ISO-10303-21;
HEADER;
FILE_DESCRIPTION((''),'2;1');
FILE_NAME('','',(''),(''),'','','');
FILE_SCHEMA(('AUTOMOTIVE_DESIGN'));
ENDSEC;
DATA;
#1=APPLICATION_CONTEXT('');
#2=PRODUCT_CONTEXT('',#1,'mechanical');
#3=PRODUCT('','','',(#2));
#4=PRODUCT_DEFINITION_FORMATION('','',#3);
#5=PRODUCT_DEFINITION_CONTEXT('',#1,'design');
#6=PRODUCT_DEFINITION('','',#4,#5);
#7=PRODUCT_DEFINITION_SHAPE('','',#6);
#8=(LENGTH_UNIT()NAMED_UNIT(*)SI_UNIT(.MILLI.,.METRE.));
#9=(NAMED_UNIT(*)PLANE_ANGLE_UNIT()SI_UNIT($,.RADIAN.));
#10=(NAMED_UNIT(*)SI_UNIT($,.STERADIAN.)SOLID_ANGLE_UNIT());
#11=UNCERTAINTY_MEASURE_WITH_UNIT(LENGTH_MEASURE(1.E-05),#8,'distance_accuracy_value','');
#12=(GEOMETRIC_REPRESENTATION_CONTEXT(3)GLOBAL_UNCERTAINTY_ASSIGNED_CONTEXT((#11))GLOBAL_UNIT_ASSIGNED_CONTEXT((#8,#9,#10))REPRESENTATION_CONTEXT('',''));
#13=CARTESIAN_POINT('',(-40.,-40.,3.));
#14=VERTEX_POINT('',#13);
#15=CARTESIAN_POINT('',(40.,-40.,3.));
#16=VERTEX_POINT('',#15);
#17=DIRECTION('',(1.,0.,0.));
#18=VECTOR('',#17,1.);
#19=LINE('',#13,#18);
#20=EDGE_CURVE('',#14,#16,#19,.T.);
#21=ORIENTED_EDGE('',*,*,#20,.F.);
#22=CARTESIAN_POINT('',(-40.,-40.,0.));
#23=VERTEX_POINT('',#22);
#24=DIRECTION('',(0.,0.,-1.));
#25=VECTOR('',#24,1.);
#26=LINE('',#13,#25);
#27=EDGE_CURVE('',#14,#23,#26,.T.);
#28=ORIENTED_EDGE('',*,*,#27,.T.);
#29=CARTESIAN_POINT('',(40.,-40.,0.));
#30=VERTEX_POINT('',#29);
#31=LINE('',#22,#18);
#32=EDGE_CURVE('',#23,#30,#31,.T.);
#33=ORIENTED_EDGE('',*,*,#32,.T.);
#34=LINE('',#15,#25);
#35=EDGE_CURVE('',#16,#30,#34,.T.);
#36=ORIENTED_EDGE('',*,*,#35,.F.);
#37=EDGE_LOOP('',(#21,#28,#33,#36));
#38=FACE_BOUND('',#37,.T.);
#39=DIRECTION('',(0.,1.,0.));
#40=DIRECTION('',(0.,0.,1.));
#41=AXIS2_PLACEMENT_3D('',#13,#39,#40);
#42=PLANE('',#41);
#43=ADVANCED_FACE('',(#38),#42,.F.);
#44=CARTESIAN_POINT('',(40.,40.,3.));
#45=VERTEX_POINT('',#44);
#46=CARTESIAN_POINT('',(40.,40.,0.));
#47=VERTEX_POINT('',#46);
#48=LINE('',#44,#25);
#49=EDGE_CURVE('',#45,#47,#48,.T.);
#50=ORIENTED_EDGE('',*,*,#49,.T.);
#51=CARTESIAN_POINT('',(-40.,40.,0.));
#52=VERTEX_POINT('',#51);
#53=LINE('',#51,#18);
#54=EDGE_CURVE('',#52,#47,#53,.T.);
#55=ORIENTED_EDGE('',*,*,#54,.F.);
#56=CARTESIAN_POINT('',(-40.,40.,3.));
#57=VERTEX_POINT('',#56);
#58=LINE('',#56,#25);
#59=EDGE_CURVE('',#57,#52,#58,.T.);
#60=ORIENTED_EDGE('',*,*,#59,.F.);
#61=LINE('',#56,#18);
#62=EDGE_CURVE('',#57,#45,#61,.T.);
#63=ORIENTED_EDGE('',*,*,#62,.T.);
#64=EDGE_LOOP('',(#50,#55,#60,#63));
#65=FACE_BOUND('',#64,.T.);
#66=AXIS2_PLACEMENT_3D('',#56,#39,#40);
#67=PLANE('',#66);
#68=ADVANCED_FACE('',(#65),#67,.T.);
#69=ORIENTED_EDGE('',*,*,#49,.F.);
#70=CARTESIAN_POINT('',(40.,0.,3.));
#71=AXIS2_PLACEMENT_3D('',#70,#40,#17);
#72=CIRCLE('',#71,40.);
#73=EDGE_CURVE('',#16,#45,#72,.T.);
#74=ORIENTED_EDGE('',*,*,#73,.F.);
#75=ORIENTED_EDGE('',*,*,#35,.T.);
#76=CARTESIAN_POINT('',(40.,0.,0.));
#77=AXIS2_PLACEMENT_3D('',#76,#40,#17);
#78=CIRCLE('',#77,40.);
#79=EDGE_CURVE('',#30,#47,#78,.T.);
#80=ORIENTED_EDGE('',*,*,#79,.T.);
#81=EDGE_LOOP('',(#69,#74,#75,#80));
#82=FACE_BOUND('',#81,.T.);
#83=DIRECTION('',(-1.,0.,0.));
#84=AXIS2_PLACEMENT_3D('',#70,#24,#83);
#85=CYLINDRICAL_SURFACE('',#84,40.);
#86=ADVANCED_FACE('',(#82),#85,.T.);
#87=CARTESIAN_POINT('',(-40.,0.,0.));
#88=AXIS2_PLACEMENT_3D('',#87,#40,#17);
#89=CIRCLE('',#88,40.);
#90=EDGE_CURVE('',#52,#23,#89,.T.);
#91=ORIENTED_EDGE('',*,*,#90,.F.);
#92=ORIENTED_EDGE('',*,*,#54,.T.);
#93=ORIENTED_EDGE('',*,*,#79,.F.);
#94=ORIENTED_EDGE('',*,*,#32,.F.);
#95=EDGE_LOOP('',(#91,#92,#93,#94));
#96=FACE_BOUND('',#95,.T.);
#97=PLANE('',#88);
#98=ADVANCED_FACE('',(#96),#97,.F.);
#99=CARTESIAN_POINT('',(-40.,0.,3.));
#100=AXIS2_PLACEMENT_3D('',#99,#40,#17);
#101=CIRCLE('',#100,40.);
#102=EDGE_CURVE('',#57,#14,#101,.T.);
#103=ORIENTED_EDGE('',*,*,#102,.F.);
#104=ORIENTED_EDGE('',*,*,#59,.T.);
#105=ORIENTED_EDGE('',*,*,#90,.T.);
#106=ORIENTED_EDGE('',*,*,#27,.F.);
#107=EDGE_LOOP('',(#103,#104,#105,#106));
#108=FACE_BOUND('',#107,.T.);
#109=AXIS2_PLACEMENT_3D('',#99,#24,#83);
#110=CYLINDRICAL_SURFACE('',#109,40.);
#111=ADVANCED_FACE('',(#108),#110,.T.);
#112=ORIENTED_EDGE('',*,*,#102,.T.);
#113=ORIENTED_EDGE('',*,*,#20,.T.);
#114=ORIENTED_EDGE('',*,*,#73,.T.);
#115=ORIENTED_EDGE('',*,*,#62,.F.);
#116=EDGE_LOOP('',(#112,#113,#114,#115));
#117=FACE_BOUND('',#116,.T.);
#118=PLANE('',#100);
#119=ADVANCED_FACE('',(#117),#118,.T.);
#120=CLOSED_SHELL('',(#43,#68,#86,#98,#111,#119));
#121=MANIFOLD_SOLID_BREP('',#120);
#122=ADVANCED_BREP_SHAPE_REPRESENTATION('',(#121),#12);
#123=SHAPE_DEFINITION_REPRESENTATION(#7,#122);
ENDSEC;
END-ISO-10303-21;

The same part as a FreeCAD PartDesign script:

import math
import FreeCAD as App
import Part
import Sketcher

doc = App.newDocument("Part")
params = doc.addObject("Spreadsheet::Sheet", "Params")
for row, (alias, value) in enumerate([
    ("sketch1_radius", "40 mm"),
    ("sketch1_width", "80 mm"),
    ("pad1_length", "3 mm"),
], start=1):
    params.set(f"A{row}", alias)
    params.set(f"B{row}", "=" + value)
    params.setAlias(f"B{row}", alias)

body = doc.addObject("PartDesign::Body", "Body")

sketch1 = body.newObject("Sketcher::SketchObject", "Sketch")
sketch1.AttachmentSupport = (doc.getObject("XY_Plane"), [""])
sketch1.MapMode = "FlatFace"
sketch1.addGeometry(Part.LineSegment(App.Vector(40, 40, 0), App.Vector(-40, 40, 0)), False)
sketch1.addGeometry(Part.ArcOfCircle(Part.Circle(App.Vector(-40, 0, 0), App.Vector(0, 0, 1), 40), math.radians(90), math.radians(270)), False)
sketch1.addGeometry(Part.LineSegment(App.Vector(-40, -40, 0), App.Vector(40, -40, 0)), False)
sketch1.addGeometry(Part.ArcOfCircle(Part.Circle(App.Vector(40, 0, 0), App.Vector(0, 0, 1), 40), math.radians(-90), math.radians(90)), False)
sketch1.addConstraint(Sketcher.Constraint("Tangent", 0, 2, 1, 1))
sketch1.addConstraint(Sketcher.Constraint("Tangent", 1, 2, 2, 1))
sketch1.addConstraint(Sketcher.Constraint("Tangent", 2, 2, 3, 1))
sketch1.addConstraint(Sketcher.Constraint("Tangent", 3, 2, 0, 1))
sketch1.addConstraint(Sketcher.Constraint("Horizontal", 0))
sketch1.addConstraint(Sketcher.Constraint("Horizontal", 2))
sketch1.addConstraint(Sketcher.Constraint("Symmetric", 1, 3, 3, 3, -1, 1))
sketch1.addConstraint(Sketcher.Constraint("Radius", 1, 40.0))
sketch1.addConstraint(Sketcher.Constraint("DistanceX", 0, 2, 0, 1, 80.0))
sketch1.setExpression("Constraints[7]", "Params.sketch1_radius")
sketch1.setExpression("Constraints[8]", "Params.sketch1_width")
pad1 = body.newObject("PartDesign::Pad", "Pad")
pad1.Profile = sketch1
pad1.setExpression("Length", "Params.pad1_length")

doc.recompute()
